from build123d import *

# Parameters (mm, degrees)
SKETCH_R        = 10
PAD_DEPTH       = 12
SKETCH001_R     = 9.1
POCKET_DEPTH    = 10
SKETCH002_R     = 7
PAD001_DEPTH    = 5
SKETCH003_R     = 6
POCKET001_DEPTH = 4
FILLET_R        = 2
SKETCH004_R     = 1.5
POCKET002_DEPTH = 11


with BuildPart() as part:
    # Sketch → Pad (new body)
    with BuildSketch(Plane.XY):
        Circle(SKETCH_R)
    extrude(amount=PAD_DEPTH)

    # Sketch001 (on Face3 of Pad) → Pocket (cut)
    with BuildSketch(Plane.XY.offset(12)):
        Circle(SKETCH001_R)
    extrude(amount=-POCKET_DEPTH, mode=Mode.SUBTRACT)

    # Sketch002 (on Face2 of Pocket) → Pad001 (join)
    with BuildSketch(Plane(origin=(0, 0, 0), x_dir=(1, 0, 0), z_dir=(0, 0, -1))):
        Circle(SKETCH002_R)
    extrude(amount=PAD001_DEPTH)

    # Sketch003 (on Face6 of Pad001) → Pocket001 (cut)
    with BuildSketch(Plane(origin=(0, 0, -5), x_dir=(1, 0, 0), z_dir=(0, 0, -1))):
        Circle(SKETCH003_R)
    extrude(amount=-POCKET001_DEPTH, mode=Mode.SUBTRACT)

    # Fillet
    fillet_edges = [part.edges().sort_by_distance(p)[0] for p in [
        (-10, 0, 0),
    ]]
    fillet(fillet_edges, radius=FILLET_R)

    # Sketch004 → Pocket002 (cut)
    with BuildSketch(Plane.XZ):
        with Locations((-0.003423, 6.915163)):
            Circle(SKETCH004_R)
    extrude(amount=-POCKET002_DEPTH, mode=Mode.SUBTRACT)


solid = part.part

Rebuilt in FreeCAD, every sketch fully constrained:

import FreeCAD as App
import Part
import Sketcher

V = App.Vector
Q = App.Units.Quantity


def edges_at(feature, points):
    """Names of the edges that pass closest to the given points."""
    edges = feature.Shape.Edges
    near = lambda p: min(range(len(edges)), key=lambda i: edges[i].distToShape(Part.Vertex(*p))[0])
    return sorted({f"Edge{near(p) + 1}" for p in points})

doc = App.newDocument("Part")
params = doc.addObject("Spreadsheet::Sheet", "Params")
for row, (alias, value) in enumerate([
    ("sketch1_diameter", "20 mm"),
    ("pad1_length", "12 mm"),
    ("sketch2_diameter", "18.2 mm"),
    ("pocket1_length", "10 mm"),
    ("sketch3_diameter", "14 mm"),
    ("pad2_length", "5 mm"),
    ("sketch4_diameter", "12 mm"),
    ("pocket2_length", "4 mm"),
    ("fillet_radius", "2 mm"),
    ("sketch5_diameter", "3 mm"),
    ("pocket3_length", "11 mm"),
], start=1):
    params.set(f"A{row}", alias)
    params.set(f"B{row}", "=" + value)
    params.setAlias(f"B{row}", alias)

body = doc.addObject("PartDesign::Body", "Body")

# Sketch on XY plane
sketch1 = body.newObject("Sketcher::SketchObject", "Sketch")
sketch1.AttachmentSupport = (doc.getObject("XY_Plane"), [""])
sketch1.MapMode = "FlatFace"
sketch1.addGeometry(Part.Circle(V(0, 0, 0), V(0, 0, 1), 10), False)
sketch1.addConstraint([
    Sketcher.Constraint("Coincident", 0, 3, -1, 1),
    Sketcher.Constraint("Diameter", 0, Q("20 mm")),
])
sketch1.setExpression("Constraints[1]", "Params.sketch1_diameter")
pad1 = body.newObject("PartDesign::Pad", "Pad")
pad1.Profile = sketch1
pad1.setExpression("Length", "Params.pad1_length")

# Sketch on XY plane
sketch2 = body.newObject("Sketcher::SketchObject", "Sketch001")
sketch2.AttachmentSupport = (doc.getObject("XY_Plane"), [""])
sketch2.MapMode = "FlatFace"
sketch2.AttachmentOffset = App.Placement(V(0, 0, 12), App.Rotation())
sketch2.addGeometry(Part.Circle(V(0, 0, 0), V(0, 0, 1), 9), False)
sketch2.addConstraint([
    Sketcher.Constraint("Coincident", 0, 3, -1, 1),
    Sketcher.Constraint("Diameter", 0, Q("18.2 mm")),
])
sketch2.setExpression("Constraints[1]", "Params.sketch2_diameter")
pocket1 = body.newObject("PartDesign::Pocket", "Pocket")
pocket1.Profile = sketch2
pocket1.setExpression("Length", "Params.pocket1_length")

# Sketch on XY plane
sketch3 = body.newObject("Sketcher::SketchObject", "Sketch002")
sketch3.AttachmentSupport = (doc.getObject("XY_Plane"), [""])
sketch3.MapMode = "FlatFace"
sketch3.addGeometry(Part.Circle(V(0, 0, 0), V(0, 0, 1), 7), False)
sketch3.addConstraint([
    Sketcher.Constraint("Coincident", 0, 3, -1, 1),
    Sketcher.Constraint("Diameter", 0, Q("14 mm")),
])
sketch3.setExpression("Constraints[1]", "Params.sketch3_diameter")
pad2 = body.newObject("PartDesign::Pad", "Pad001")
pad2.Profile = sketch3
pad2.setExpression("Length", "Params.pad2_length")
pad2.Reversed = True

# Sketch on XY plane
sketch4 = body.newObject("Sketcher::SketchObject", "Sketch003")
sketch4.AttachmentSupport = (doc.getObject("XY_Plane"), [""])
sketch4.MapMode = "FlatFace"
sketch4.AttachmentOffset = App.Placement(V(0, 0, -5), App.Rotation())
sketch4.addGeometry(Part.Circle(V(0, 0, 0), V(0, 0, 1), 6), False)
sketch4.addConstraint([
    Sketcher.Constraint("Coincident", 0, 3, -1, 1),
    Sketcher.Constraint("Diameter", 0, Q("12 mm")),
])
sketch4.setExpression("Constraints[1]", "Params.sketch4_diameter")
pocket2 = body.newObject("PartDesign::Pocket", "Pocket001")
pocket2.Profile = sketch4
pocket2.setExpression("Length", "Params.pocket2_length")
pocket2.Reversed = True
doc.recompute()

fillet = body.newObject("PartDesign::Fillet", "Fillet")
fillet.Base = (pocket2, edges_at(pocket2, [(-10, 0, 0)]))
fillet.setExpression("Radius", "Params.fillet_radius")

# Sketch on XZ plane
sketch5 = body.newObject("Sketcher::SketchObject", "Sketch004")
sketch5.AttachmentSupport = (doc.getObject("XZ_Plane"), [""])
sketch5.MapMode = "FlatFace"
sketch5.addGeometry(Part.Circle(V(0, 6.9, 0), V(0, 0, 1), 1.5), False)
sketch5.addConstraint([
    Sketcher.Constraint("Diameter", 0, Q("3 mm")),
    Sketcher.Constraint("DistanceX", 0, 3, -1, 1, Q("0.003423 mm")),
    Sketcher.Constraint("DistanceY", -1, 1, 0, 3, Q("6.915163 mm")),
])
sketch5.setExpression("Constraints[0]", "Params.sketch5_diameter")
pocket3 = body.newObject("PartDesign::Pocket", "Pocket002")
pocket3.Profile = sketch5
pocket3.setExpression("Length", "Params.pocket3_length")

doc.recompute()
